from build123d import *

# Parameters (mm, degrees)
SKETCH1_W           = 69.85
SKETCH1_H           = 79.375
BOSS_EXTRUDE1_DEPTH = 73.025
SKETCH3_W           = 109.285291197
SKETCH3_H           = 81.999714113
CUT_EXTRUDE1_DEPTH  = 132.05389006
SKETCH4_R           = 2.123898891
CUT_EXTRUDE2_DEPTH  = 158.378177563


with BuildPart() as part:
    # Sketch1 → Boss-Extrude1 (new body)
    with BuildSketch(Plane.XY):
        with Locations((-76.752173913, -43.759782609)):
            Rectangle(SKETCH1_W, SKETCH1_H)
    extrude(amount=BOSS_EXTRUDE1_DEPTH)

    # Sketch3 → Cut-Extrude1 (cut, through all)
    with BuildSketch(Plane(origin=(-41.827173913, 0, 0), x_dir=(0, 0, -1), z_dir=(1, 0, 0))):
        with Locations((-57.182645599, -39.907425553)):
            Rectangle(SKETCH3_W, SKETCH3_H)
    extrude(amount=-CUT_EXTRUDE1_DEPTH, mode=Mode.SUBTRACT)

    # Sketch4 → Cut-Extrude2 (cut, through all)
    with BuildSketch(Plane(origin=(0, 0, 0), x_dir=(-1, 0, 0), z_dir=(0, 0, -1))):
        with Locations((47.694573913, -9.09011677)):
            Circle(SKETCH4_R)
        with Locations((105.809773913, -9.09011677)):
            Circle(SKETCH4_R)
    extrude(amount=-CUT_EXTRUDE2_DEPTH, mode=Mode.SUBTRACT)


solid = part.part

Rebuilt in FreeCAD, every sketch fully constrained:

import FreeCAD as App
import Part
import Sketcher

V = App.Vector
Q = App.Units.Quantity


def add_polygon(sketch, points):
    """Adds a closed chain of lines whose ends are joined by coincident constraints."""
    first, n = sketch.GeometryCount, len(points)
    for a, b in zip(points, points[1:] + points[:1]):
        sketch.addGeometry(Part.LineSegment(App.Vector(*a, 0), App.Vector(*b, 0)), False)
    for i in range(n):
        sketch.addConstraint(Sketcher.Constraint("Coincident", first + i, 2, first + (i + 1) % n, 1))

doc = App.newDocument("Part")
body = doc.addObject("PartDesign::Body", "Body")

# Sketch on XY plane
sketch1 = body.newObject("Sketcher::SketchObject", "Sketch")
sketch1.AttachmentSupport = (doc.getObject("XY_Plane"), [""])
sketch1.MapMode = "FlatFace"
add_polygon(sketch1, [(-112, -4), (-112, -83), (-42, -83), (-42, -4)])  # lines 0-3
sketch1.addConstraint([
    Sketcher.Constraint("Vertical", 0),
    Sketcher.Constraint("Horizontal", 1),
    Sketcher.Constraint("Vertical", 2),
    Sketcher.Constraint("Horizontal", 3),
    Sketcher.Constraint("DistanceX", 1, 1, 1, 2, Q("2.75 in")),
    Sketcher.Constraint("DistanceY", 0, 2, 0, 1, Q("3.125 in")),
    Sketcher.Constraint("DistanceX", 0, 2, -1, 1, Q("111.677174 mm")),
    Sketcher.Constraint("DistanceY", 0, 2, -1, 1, Q("83.447283 mm")),
])
pad1 = body.newObject("PartDesign::Pad", "Pad")
pad1.Profile = sketch1
pad1.Length = Q("2.875 in")

# Sketch on YZ plane
sketch2 = body.newObject("Sketcher::SketchObject", "Sketch001")
sketch2.AttachmentSupport = (doc.getObject("YZ_Plane"), [""])
sketch2.MapMode = "FlatFace"
sketch2.AttachmentOffset = App.Placement(V(0, 0, -41.827174), App.Rotation())
add_polygon(sketch2, [(1, 112), (-81, 112), (-81, 3), (1, 3)])  # lines 0-3
sketch2.addConstraint([
    Sketcher.Constraint("Horizontal", 0),
    Sketcher.Constraint("Vertical", 1),
    Sketcher.Constraint("Horizontal", 2),
    Sketcher.Constraint("Vertical", 3),
    Sketcher.Constraint("DistanceY", -1, 1, 1, 2, Q("0.1 in")),
    Sketcher.Constraint("DistanceY", 1, 2, 1, 1, Q("109.285291 mm")),
    Sketcher.Constraint("DistanceX", 0, 2, 0, 1, Q("81.999714 mm")),
    Sketcher.Constraint("DistanceX", -1, 1, 2, 2, Q("1.092432 mm")),
])
pocket1 = body.newObject("PartDesign::Pocket", "Pocket")
pocket1.Profile = sketch2
pocket1.Type = "ThroughAll"

# Sketch on XY plane
sketch3 = body.newObject("Sketcher::SketchObject", "Sketch002")
sketch3.AttachmentSupport = (doc.getObject("XY_Plane"), [""])
sketch3.MapMode = "FlatFace"
sketch3.addGeometry([
    Part.Circle(V(-47.7, -9.1, 0), V(0, 0, 1), 2.1),
    Part.Circle(V(-105.8, -9.1, 0), V(0, 0, 1), 2.1),
], False)
sketch3.addConstraint([
    Sketcher.Constraint("Equal", 0, 1),
    Sketcher.Constraint("Horizontal", 0, 3, 1, 3),
    Sketcher.Constraint("DistanceX", 1, 3, 0, 3, Q("2.288 in")),
    Sketcher.Constraint("Diameter", 0, Q("4.247798 mm")),
    Sketcher.Constraint("DistanceX", 0, 3, -1, 1, Q("47.694574 mm")),
    Sketcher.Constraint("DistanceY", 0, 3, -1, 1, Q("9.090117 mm")),
])
pocket2 = body.newObject("PartDesign::Pocket", "Pocket001")
pocket2.Profile = sketch3
pocket2.Type = "ThroughAll"
pocket2.Reversed = True

doc.recompute()
